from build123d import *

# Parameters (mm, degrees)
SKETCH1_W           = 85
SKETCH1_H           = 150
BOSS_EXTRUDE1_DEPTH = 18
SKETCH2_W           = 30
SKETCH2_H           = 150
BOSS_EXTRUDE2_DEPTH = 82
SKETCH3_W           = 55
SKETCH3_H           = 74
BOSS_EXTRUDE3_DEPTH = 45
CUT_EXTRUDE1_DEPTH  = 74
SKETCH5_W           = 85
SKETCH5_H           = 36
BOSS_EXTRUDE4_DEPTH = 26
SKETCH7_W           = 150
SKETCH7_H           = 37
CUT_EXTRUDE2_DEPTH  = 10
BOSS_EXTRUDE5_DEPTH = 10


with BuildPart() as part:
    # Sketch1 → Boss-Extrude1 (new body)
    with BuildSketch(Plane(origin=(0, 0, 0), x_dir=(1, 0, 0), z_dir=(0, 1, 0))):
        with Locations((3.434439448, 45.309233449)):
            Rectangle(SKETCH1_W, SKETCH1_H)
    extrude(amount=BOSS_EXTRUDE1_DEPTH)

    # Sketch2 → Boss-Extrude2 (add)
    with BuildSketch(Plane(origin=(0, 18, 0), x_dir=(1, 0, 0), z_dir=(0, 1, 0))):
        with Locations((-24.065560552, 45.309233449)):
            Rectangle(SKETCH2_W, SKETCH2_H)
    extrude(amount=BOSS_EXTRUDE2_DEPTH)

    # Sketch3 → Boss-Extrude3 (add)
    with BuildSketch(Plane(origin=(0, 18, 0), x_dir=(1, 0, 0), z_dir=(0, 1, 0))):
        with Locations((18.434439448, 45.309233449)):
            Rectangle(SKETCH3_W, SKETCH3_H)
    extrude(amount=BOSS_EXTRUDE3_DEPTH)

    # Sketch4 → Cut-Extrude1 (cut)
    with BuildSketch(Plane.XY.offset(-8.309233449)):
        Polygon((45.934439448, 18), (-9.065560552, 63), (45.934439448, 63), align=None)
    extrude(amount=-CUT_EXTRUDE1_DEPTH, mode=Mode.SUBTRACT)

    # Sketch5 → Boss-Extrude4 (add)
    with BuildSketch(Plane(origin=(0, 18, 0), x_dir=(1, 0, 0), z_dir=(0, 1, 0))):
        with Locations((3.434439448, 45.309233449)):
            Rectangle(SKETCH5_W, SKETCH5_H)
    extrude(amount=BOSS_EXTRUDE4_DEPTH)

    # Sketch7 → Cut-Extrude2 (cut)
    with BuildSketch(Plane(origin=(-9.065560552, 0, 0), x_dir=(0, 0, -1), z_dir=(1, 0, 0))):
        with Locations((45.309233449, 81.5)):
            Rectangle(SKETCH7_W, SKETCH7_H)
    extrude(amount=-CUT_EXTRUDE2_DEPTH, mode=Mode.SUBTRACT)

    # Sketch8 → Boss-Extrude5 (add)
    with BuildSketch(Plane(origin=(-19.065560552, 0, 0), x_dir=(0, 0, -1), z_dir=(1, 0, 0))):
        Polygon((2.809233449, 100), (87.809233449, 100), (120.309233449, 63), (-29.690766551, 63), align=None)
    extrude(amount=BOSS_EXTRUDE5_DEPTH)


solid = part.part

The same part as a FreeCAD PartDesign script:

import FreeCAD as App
import Part
import Sketcher
from FreeCAD import Vector


def add_polygon(sketch, points):
    """Adds a closed chain of lines whose ends are joined by coincident constraints."""
    first, n = sketch.GeometryCount, len(points)
    for a, b in zip(points, points[1:] + points[:1]):
        sketch.addGeometry(Part.LineSegment(App.Vector(*a, 0), App.Vector(*b, 0)), False)
    for i in range(n):
        sketch.addConstraint(Sketcher.Constraint("Coincident", first + i, 2, first + (i + 1) % n, 1))

doc = App.newDocument("Part")
body = doc.addObject("PartDesign::Body", "Body")

sketch1 = doc.addObject("Sketcher::SketchObject", "Sketch")
body.addObject(sketch1)
sketch1.AttachmentSupport = (doc.XZ_Plane, [""])
sketch1.MapMode = "FlatFace"
add_polygon(sketch1, [(-39, -120), (-39, 30), (46, 30), (46, -120)])
sketch1.addConstraint([
    Sketcher.Constraint("Vertical", 0),
    Sketcher.Constraint("Horizontal", 1),
    Sketcher.Constraint("Vertical", 2),
    Sketcher.Constraint("Horizontal", 3),
    Sketcher.Constraint("DistanceX", 1, 1, 1, 2, 85.0),
    Sketcher.Constraint("DistanceY", 0, 1, 0, 2, 150.0),
    Sketcher.Constraint("DistanceX", 0, 2, -1, 1, 39.065561),
    Sketcher.Constraint("DistanceY", -1, 1, 0, 2, 29.690767),
])
pad1 = doc.addObject("PartDesign::Pad", "Pad")
body.addObject(pad1)
pad1.Profile = sketch1
pad1.Length = 18
pad1.Reversed = True

sketch2 = doc.addObject("Sketcher::SketchObject", "Sketch001")
body.addObject(sketch2)
sketch2.AttachmentSupport = (doc.XZ_Plane, [""])
sketch2.MapMode = "FlatFace"
sketch2.AttachmentOffset = App.Placement(Vector(0, 0, -18), App.Rotation())
add_polygon(sketch2, [(-39, -120), (-39, 30), (-9, 30), (-9, -120)])
sketch2.addConstraint([
    Sketcher.Constraint("Vertical", 0),
    Sketcher.Constraint("Horizontal", 1),
    Sketcher.Constraint("Vertical", 2),
    Sketcher.Constraint("Horizontal", 3),
    Sketcher.Constraint("DistanceX", 1, 1, 1, 2, 30.0),
    Sketcher.Constraint("DistanceY", 0, 1, 0, 2, 150.0),
    Sketcher.Constraint("DistanceX", 0, 2, -1, 1, 39.065561),
    Sketcher.Constraint("DistanceY", -1, 1, 0, 2, 29.690767),
])
pad2 = doc.addObject("PartDesign::Pad", "Pad001")
body.addObject(pad2)
pad2.Profile = sketch2
pad2.Length = 82
pad2.Reversed = True

sketch3 = doc.addObject("Sketcher::SketchObject", "Sketch002")
body.addObject(sketch3)
sketch3.AttachmentSupport = (doc.XZ_Plane, [""])
sketch3.MapMode = "FlatFace"
sketch3.AttachmentOffset = App.Placement(Vector(0, 0, -18), App.Rotation())
add_polygon(sketch3, [(-9, -82), (-9, -8), (46, -8), (46, -82)])
sketch3.addConstraint([
    Sketcher.Constraint("Vertical", 0),
    Sketcher.Constraint("Horizontal", 1),
    Sketcher.Constraint("Vertical", 2),
    Sketcher.Constraint("Horizontal", 3),
    Sketcher.Constraint("DistanceX", 1, 1, 1, 2, 55.0),
    Sketcher.Constraint("DistanceY", 0, 1, 0, 2, 74.0),
    Sketcher.Constraint("DistanceX", 0, 2, -1, 1, 9.065561),
    Sketcher.Constraint("DistanceY", 0, 2, -1, 1, 8.309233),
])
pad3 = doc.addObject("PartDesign::Pad", "Pad002")
body.addObject(pad3)
pad3.Profile = sketch3
pad3.Length = 45
pad3.Reversed = True

sketch4 = doc.addObject("Sketcher::SketchObject", "Sketch003")
body.addObject(sketch4)
sketch4.AttachmentSupport = (doc.XY_Plane, [""])
sketch4.MapMode = "FlatFace"
sketch4.AttachmentOffset = App.Placement(Vector(0, 0, -8.309233), App.Rotation())
add_polygon(sketch4, [(-9, 63), (46, 18), (46, 63)])
sketch4.addConstraint([
    Sketcher.Constraint("Vertical", 1),
    Sketcher.Constraint("Horizontal", 2),
    Sketcher.Constraint("DistanceX", 2, 2, 2, 1, 55.0),
    Sketcher.Constraint("DistanceY", 1, 1, 1, 2, 45.0),
    Sketcher.Constraint("DistanceY", -1, 1, 0, 2, 18.0),
    Sketcher.Constraint("DistanceX", -1, 1, 0, 2, 45.934439),
])
pocket1 = doc.addObject("PartDesign::Pocket", "Pocket")
body.addObject(pocket1)
pocket1.Profile = sketch4
pocket1.Length = 74

sketch5 = doc.addObject("Sketcher::SketchObject", "Sketch004")
body.addObject(sketch5)
sketch5.AttachmentSupport = (doc.XZ_Plane, [""])
sketch5.MapMode = "FlatFace"
sketch5.AttachmentOffset = App.Placement(Vector(0, 0, -18), App.Rotation())
add_polygon(sketch5, [(-39, -63), (-39, -27), (46, -27), (46, -63)])
sketch5.addConstraint([
    Sketcher.Constraint("Vertical", 0),
    Sketcher.Constraint("Horizontal", 1),
    Sketcher.Constraint("Vertical", 2),
    Sketcher.Constraint("Horizontal", 3),
    Sketcher.Constraint("DistanceX", 1, 1, 1, 2, 85.0),
    Sketcher.Constraint("DistanceY", 0, 1, 0, 2, 36.0),
    Sketcher.Constraint("DistanceX", 0, 2, -1, 1, 39.065561),
    Sketcher.Constraint("DistanceY", 0, 2, -1, 1, 27.309233),
])
pad4 = doc.addObject("PartDesign::Pad", "Pad003")
body.addObject(pad4)
pad4.Profile = sketch5
pad4.Length = 26
pad4.Reversed = True

sketch6 = doc.addObject("Sketcher::SketchObject", "Sketch005")
body.addObject(sketch6)
sketch6.AttachmentSupport = (doc.YZ_Plane, [""])
sketch6.MapMode = "FlatFace"
sketch6.AttachmentOffset = App.Placement(Vector(0, 0, -9.065561), App.Rotation())
add_polygon(sketch6, [(100, 30), (63, 30), (63, -120), (100, -120)])
sketch6.addConstraint([
    Sketcher.Constraint("Horizontal", 0),
    Sketcher.Constraint("Vertical", 1),
    Sketcher.Constraint("Horizontal", 2),
    Sketcher.Constraint("Vertical", 3),
    Sketcher.Constraint("DistanceX", 0, 2, 0, 1, 37.0),
    Sketcher.Constraint("DistanceY", 1, 2, 1, 1, 150.0),
    Sketcher.Constraint("DistanceX", -1, 1, 0, 2, 63.0),
    Sketcher.Constraint("DistanceY", -1, 1, 0, 2, 29.690767),
])
pocket2 = doc.addObject("PartDesign::Pocket", "Pocket001")
body.addObject(pocket2)
pocket2.Profile = sketch6
pocket2.Length = 10

sketch7 = doc.addObject("Sketcher::SketchObject", "Sketch006")
body.addObject(sketch7)
sketch7.AttachmentSupport = (doc.YZ_Plane, [""])
sketch7.MapMode = "FlatFace"
sketch7.AttachmentOffset = App.Placement(Vector(0, 0, -19.065561), App.Rotation())
add_polygon(sketch7, [(100, -88), (100, -3), (63, 30), (63, -120)])
sketch7.addConstraint([
    Sketcher.Constraint("Vertical", 0),
    Sketcher.Constraint("Vertical", 2),
    Sketcher.Constraint("Equal", 1, 3),
    Sketcher.Constraint("DistanceY", 0, 1, 0, 2, 85.0),
    Sketcher.Constraint("DistanceY", 2, 2, 2, 1, 150.0),
    Sketcher.Constraint("DistanceX", -1, 1, 0, 2, 100.0),
    Sketcher.Constraint("DistanceX", -1, 1, 1, 2, 63.0),
    Sketcher.Constraint("DistanceY", 0, 2, -1, 1, 2.809233),
])
pad5 = doc.addObject("PartDesign::Pad", "Pad004")
body.addObject(pad5)
pad5.Profile = sketch7
pad5.Length = 10

doc.recompute()
